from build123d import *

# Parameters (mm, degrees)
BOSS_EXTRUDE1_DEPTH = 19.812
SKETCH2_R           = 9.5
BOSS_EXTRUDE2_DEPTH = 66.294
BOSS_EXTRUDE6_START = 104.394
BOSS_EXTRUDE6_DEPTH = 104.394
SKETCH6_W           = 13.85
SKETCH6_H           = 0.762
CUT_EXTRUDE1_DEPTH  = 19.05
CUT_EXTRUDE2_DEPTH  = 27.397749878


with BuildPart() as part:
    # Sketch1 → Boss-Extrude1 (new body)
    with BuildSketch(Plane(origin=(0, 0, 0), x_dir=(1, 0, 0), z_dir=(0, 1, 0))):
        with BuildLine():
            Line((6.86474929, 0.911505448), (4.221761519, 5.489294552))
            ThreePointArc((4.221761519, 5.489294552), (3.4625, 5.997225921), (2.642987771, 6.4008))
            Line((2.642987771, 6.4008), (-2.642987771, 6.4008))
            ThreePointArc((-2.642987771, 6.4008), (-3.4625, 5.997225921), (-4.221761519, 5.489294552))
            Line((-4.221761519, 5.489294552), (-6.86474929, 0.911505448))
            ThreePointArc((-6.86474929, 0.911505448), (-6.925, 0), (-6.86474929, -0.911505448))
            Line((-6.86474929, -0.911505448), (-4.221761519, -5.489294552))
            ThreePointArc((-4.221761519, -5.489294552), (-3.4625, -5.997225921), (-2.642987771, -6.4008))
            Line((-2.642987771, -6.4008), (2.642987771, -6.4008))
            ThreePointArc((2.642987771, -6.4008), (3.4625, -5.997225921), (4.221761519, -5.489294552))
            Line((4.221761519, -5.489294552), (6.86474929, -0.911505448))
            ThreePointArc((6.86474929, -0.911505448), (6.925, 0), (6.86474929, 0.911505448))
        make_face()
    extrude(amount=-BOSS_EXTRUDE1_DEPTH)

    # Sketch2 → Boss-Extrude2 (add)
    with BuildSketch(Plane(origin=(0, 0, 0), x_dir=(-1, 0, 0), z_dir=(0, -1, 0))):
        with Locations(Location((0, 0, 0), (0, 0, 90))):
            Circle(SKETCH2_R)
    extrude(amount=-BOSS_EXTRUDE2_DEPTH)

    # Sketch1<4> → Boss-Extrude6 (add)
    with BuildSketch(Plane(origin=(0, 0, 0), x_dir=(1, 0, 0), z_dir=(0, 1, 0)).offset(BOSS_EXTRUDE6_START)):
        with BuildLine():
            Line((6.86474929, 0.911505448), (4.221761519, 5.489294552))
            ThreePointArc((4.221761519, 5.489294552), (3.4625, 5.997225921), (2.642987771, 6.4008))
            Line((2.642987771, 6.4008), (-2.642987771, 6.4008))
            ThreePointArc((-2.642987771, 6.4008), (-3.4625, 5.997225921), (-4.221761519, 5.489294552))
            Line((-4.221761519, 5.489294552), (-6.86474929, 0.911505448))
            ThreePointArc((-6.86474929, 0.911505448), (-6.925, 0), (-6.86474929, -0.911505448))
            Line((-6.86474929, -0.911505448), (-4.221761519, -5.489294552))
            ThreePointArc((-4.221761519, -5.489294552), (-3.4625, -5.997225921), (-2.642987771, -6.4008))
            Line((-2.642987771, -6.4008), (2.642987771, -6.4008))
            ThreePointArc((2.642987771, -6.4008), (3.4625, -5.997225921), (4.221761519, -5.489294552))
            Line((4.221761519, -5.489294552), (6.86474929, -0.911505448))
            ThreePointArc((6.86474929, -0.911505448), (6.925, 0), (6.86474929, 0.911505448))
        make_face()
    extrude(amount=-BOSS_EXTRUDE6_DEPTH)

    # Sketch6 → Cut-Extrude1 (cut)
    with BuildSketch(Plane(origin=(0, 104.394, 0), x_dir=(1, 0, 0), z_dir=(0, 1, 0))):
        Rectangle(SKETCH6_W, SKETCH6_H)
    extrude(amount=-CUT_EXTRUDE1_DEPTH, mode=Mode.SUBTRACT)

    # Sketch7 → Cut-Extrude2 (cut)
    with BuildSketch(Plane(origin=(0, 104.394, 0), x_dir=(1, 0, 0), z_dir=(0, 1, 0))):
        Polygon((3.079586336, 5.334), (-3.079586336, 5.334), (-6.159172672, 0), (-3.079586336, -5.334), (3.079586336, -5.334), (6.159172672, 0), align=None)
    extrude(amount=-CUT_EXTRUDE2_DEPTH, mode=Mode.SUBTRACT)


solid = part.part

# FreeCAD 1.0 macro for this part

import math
import FreeCAD as App
import Part
import Sketcher
from FreeCAD import Vector
Q = App.Units.Quantity


def add_polygon(sketch, points):
    """Adds a closed chain of lines whose ends are joined by coincident constraints."""
    first, n = sketch.GeometryCount, len(points)
    for a, b in zip(points, points[1:] + points[:1]):
        sketch.addGeometry(Part.LineSegment(App.Vector(*a, 0), App.Vector(*b, 0)), False)
    for i in range(n):
        sketch.addConstraint(Sketcher.Constraint("Coincident", first + i, 2, first + (i + 1) % n, 1))

doc = App.newDocument("Part")
body = doc.addObject("PartDesign::Body", "Body")

sketch1 = doc.addObject("Sketcher::SketchObject", "Sketch")
body.addObject(sketch1)
sketch1.AttachmentSupport = (doc.XZ_Plane, [""])
sketch1.MapMode = "FlatFace"
sketch1.addGeometry([
    Part.LineSegment(Vector(6.864749, -0.911505, 0), Vector(4.221762, -5.489295, 0)),
    Part.ArcOfCircle(Part.Circle(Vector(0, 0, 0), Vector(0, 0, 1), 6.925), math.radians(-67.563524), math.radians(-52.436476)),
    Part.LineSegment(Vector(2.642988, -6.4008, 0), Vector(-2.642988, -6.4008, 0)),
    Part.ArcOfCircle(Part.Circle(Vector(0, 0, 0), Vector(0, 0, 1), 6.925), math.radians(-127.563524), math.radians(-112.436476)),
    Part.LineSegment(Vector(-4.221762, -5.489295, 0), Vector(-6.864749, -0.911505, 0)),
    Part.ArcOfCircle(Part.Circle(Vector(0, 0, 0), Vector(0, 0, 1), 6.925), math.radians(172.436476), math.radians(187.563524)),
    Part.LineSegment(Vector(-6.864749, 0.911505, 0), Vector(-4.221762, 5.489295, 0)),
    Part.ArcOfCircle(Part.Circle(Vector(0, 0, 0), Vector(0, 0, 1), 6.925), math.radians(112.436476), math.radians(127.563524)),
    Part.LineSegment(Vector(-2.642988, 6.4008, 0), Vector(2.642988, 6.4008, 0)),
    Part.ArcOfCircle(Part.Circle(Vector(0, 0, 0), Vector(0, 0, 1), 6.925), math.radians(52.436476), math.radians(67.563524)),
    Part.LineSegment(Vector(4.221762, 5.489295, 0), Vector(6.864749, 0.911505, 0)),
    Part.ArcOfCircle(Part.Circle(Vector(0, 0, 0), Vector(0, 0, 1), 6.925), math.radians(-7.563524), math.radians(7.563524)),
], False)
sketch1.addConstraint([
    Sketcher.Constraint("Coincident", 0, 2, 1, 2),
    Sketcher.Constraint("Coincident", 1, 1, 2, 1),
    Sketcher.Constraint("Coincident", 2, 2, 3, 2),
    Sketcher.Constraint("Coincident", 3, 1, 4, 1),
    Sketcher.Constraint("Coincident", 4, 2, 5, 2),
    Sketcher.Constraint("Coincident", 5, 1, 6, 1),
    Sketcher.Constraint("Coincident", 6, 2, 7, 2),
    Sketcher.Constraint("Coincident", 7, 1, 8, 1),
    Sketcher.Constraint("Coincident", 8, 2, 9, 2),
    Sketcher.Constraint("Coincident", 9, 1, 10, 1),
    Sketcher.Constraint("Coincident", 10, 2, 11, 2),
    Sketcher.Constraint("Coincident", 11, 1, 0, 1),
    Sketcher.Constraint("Horizontal", 2),
    Sketcher.Constraint("Horizontal", 8),
    Sketcher.Constraint("Coincident", 1, 3, -1, 1),
    Sketcher.Constraint("Coincident", 3, 3, -1, 1),
    Sketcher.Constraint("Coincident", 5, 3, -1, 1),
    Sketcher.Constraint("Coincident", 7, 3, -1, 1),
    Sketcher.Constraint("Coincident", 9, 3, -1, 1),
    Sketcher.Constraint("Coincident", 11, 3, -1, 1),
    Sketcher.Constraint("Equal", 1, 3),
    Sketcher.Constraint("Equal", 3, 5),
    Sketcher.Constraint("Equal", 5, 7),
    Sketcher.Constraint("Equal", 7, 9),
    Sketcher.Constraint("Equal", 9, 11),
    Sketcher.Constraint("Parallel", 0, 6),
    Sketcher.Constraint("Parallel", 4, 10),
    Sketcher.Constraint("Horizontal", 0, 2, 3, 1),
    Sketcher.Constraint("Horizontal", 6, 2, 9, 1),
    Sketcher.Constraint("Horizontal", 5, 1, 10, 2),
    Sketcher.Constraint("Vertical", 4, 2, 5, 1),
    Sketcher.Constraint("Vertical", 2, 2, 7, 1),
    Sketcher.Constraint("Angle", 0, Q("-120 deg")),
    Sketcher.Constraint("Radius", 1, 6.925),
    Sketcher.Constraint("DistanceY", 1, 1, -1, 1, Q("0.252 in")),
    Sketcher.Constraint("DistanceY", 3, 1, 5, 1, Q("0.252 in")),
])
pad1 = doc.addObject("PartDesign::Pad", "Pad")
body.addObject(pad1)
pad1.Profile = sketch1
pad1.Length = Q("0.78 in")

sketch2 = doc.addObject("Sketcher::SketchObject", "Sketch001")
body.addObject(sketch2)
sketch2.AttachmentSupport = (doc.XZ_Plane, [""])
sketch2.MapMode = "FlatFace"
sketch2.addGeometry(Part.Circle(Vector(0, 0, 0), Vector(0, 0, 1), 9.5), False)
sketch2.addConstraint([
    Sketcher.Constraint("Coincident", 0, 3, -1, 1),
    Sketcher.Constraint("Diameter", 0, 19.0),
])
pad2 = doc.addObject("PartDesign::Pad", "Pad001")
body.addObject(pad2)
pad2.Profile = sketch2
pad2.Length = Q("2.61 in")
pad2.Reversed = True

sketch3 = doc.addObject("Sketcher::SketchObject", "Sketch002")
body.addObject(sketch3)
sketch3.AttachmentSupport = (doc.XZ_Plane, [""])
sketch3.MapMode = "FlatFace"
sketch3.AttachmentOffset = App.Placement(Vector(0, 0, -4.11 * 25.4), App.Rotation())
sketch3.addGeometry([
    Part.LineSegment(Vector(6.864749, -0.911505, 0), Vector(4.221762, -5.489295, 0)),
    Part.ArcOfCircle(Part.Circle(Vector(0, 0, 0), Vector(0, 0, 1), 6.925), math.radians(-67.563524), math.radians(-52.436476)),
    Part.LineSegment(Vector(2.642988, -6.4008, 0), Vector(-2.642988, -6.4008, 0)),
    Part.ArcOfCircle(Part.Circle(Vector(0, 0, 0), Vector(0, 0, 1), 6.925), math.radians(-127.563524), math.radians(-112.436476)),
    Part.LineSegment(Vector(-4.221762, -5.489295, 0), Vector(-6.864749, -0.911505, 0)),
    Part.ArcOfCircle(Part.Circle(Vector(0, 0, 0), Vector(0, 0, 1), 6.925), math.radians(172.436476), math.radians(187.563524)),
    Part.LineSegment(Vector(-6.864749, 0.911505, 0), Vector(-4.221762, 5.489295, 0)),
    Part.ArcOfCircle(Part.Circle(Vector(0, 0, 0), Vector(0, 0, 1), 6.925), math.radians(112.436476), math.radians(127.563524)),
    Part.LineSegment(Vector(-2.642988, 6.4008, 0), Vector(2.642988, 6.4008, 0)),
    Part.ArcOfCircle(Part.Circle(Vector(0, 0, 0), Vector(0, 0, 1), 6.925), math.radians(52.436476), math.radians(67.563524)),
    Part.LineSegment(Vector(4.221762, 5.489295, 0), Vector(6.864749, 0.911505, 0)),
    Part.ArcOfCircle(Part.Circle(Vector(0, 0, 0), Vector(0, 0, 1), 6.925), math.radians(-7.563524), math.radians(7.563524)),
], False)
sketch3.addConstraint([
    Sketcher.Constraint("Coincident", 0, 2, 1, 2),
    Sketcher.Constraint("Coincident", 1, 1, 2, 1),
    Sketcher.Constraint("Coincident", 2, 2, 3, 2),
    Sketcher.Constraint("Coincident", 3, 1, 4, 1),
    Sketcher.Constraint("Coincident", 4, 2, 5, 2),
    Sketcher.Constraint("Coincident", 5, 1, 6, 1),
    Sketcher.Constraint("Coincident", 6, 2, 7, 2),
    Sketcher.Constraint("Coincident", 7, 1, 8, 1),
    Sketcher.Constraint("Coincident", 8, 2, 9, 2),
    Sketcher.Constraint("Coincident", 9, 1, 10, 1),
    Sketcher.Constraint("Coincident", 10, 2, 11, 2),
    Sketcher.Constraint("Coincident", 11, 1, 0, 1),
    Sketcher.Constraint("Horizontal", 2),
    Sketcher.Constraint("Horizontal", 8),
    Sketcher.Constraint("Coincident", 1, 3, -1, 1),
    Sketcher.Constraint("Coincident", 3, 3, -1, 1),
    Sketcher.Constraint("Coincident", 5, 3, -1, 1),
    Sketcher.Constraint("Coincident", 7, 3, -1, 1),
    Sketcher.Constraint("Coincident", 9, 3, -1, 1),
    Sketcher.Constraint("Coincident", 11, 3, -1, 1),
    Sketcher.Constraint("Equal", 1, 3),
    Sketcher.Constraint("Equal", 3, 5),
    Sketcher.Constraint("Equal", 5, 7),
    Sketcher.Constraint("Equal", 7, 9),
    Sketcher.Constraint("Equal", 9, 11),
    Sketcher.Constraint("Parallel", 0, 6),
    Sketcher.Constraint("Parallel", 4, 10),
    Sketcher.Constraint("Horizontal", 0, 2, 3, 1),
    Sketcher.Constraint("Horizontal", 6, 2, 9, 1),
    Sketcher.Constraint("Horizontal", 5, 1, 10, 2),
    Sketcher.Constraint("Vertical", 4, 2, 5, 1),
    Sketcher.Constraint("Vertical", 2, 2, 7, 1),
    Sketcher.Constraint("Angle", 0, Q("-120 deg")),
    Sketcher.Constraint("Radius", 1, 6.925),
    Sketcher.Constraint("DistanceY", 1, 1, -1, 1, Q("0.252 in")),
    Sketcher.Constraint("DistanceY", 3, 1, 5, 1, Q("0.252 in")),
])
pad3 = doc.addObject("PartDesign::Pad", "Pad002")
body.addObject(pad3)
pad3.Profile = sketch3
pad3.Length = Q("4.11 in")

sketch4 = doc.addObject("Sketcher::SketchObject", "Sketch003")
body.addObject(sketch4)
sketch4.AttachmentSupport = (doc.XZ_Plane, [""])
sketch4.MapMode = "FlatFace"
sketch4.AttachmentOffset = App.Placement(Vector(0, 0, -4.11 * 25.4), App.Rotation())
add_polygon(sketch4, [(-6.925, -0.381), (-6.925, 0.381), (6.925, 0.381), (6.925, -0.381)])
sketch4.addConstraint([
    Sketcher.Constraint("Vertical", 0),
    Sketcher.Constraint("Horizontal", 1),
    Sketcher.Constraint("Vertical", 2),
    Sketcher.Constraint("Horizontal", 3),
    Sketcher.Constraint("Symmetric", 0, 2, 2, 2, -1, 1),
    Sketcher.Constraint("DistanceY", 0, 1, 0, 2, Q("0.03 in")),
    Sketcher.Constraint("DistanceX", 1, 1, 1, 2, 13.85),
])
pocket1 = doc.addObject("PartDesign::Pocket", "Pocket")
body.addObject(pocket1)
pocket1.Profile = sketch4
pocket1.Length = Q("0.75 in")
pocket1.Reversed = True

sketch5 = doc.addObject("Sketcher::SketchObject", "Sketch004")
body.addObject(sketch5)
sketch5.AttachmentSupport = (doc.XZ_Plane, [""])
sketch5.MapMode = "FlatFace"
sketch5.AttachmentOffset = App.Placement(Vector(0, 0, -4.11 * 25.4), App.Rotation())
add_polygon(sketch5, [(3.079586, -5.334), (-3.079586, -5.334), (-6.159173, 0), (-3.079586, 5.334), (3.079586, 5.334), (6.159173, 0)])
sketch5.addConstraint([
    Sketcher.Constraint("Horizontal", 0),
    Sketcher.Constraint("Horizontal", 3),
    Sketcher.Constraint("Symmetric", 0, 2, 3, 2, -1, 1),
    Sketcher.Constraint("Symmetric", 1, 2, 4, 2, -1, 1),
    Sketcher.Constraint("PointOnObject", 1, 2, -1),
    Sketcher.Constraint("Parallel", 2, 5),
    Sketcher.Constraint("Vertical", 0, 2, 2, 2),
    Sketcher.Constraint("Angle", 1, Q("120 deg")),
    Sketcher.Constraint("DistanceY", 0, 2, -1, 1, Q("0.21 in")),
    Sketcher.Constraint("DistanceX", 0, 2, 0, 1, 6.159173),
])
pocket2 = doc.addObject("PartDesign::Pocket", "Pocket001")
body.addObject(pocket2)
pocket2.Profile = sketch5
pocket2.Length = 27.39775
pocket2.Reversed = True

doc.recompute()
